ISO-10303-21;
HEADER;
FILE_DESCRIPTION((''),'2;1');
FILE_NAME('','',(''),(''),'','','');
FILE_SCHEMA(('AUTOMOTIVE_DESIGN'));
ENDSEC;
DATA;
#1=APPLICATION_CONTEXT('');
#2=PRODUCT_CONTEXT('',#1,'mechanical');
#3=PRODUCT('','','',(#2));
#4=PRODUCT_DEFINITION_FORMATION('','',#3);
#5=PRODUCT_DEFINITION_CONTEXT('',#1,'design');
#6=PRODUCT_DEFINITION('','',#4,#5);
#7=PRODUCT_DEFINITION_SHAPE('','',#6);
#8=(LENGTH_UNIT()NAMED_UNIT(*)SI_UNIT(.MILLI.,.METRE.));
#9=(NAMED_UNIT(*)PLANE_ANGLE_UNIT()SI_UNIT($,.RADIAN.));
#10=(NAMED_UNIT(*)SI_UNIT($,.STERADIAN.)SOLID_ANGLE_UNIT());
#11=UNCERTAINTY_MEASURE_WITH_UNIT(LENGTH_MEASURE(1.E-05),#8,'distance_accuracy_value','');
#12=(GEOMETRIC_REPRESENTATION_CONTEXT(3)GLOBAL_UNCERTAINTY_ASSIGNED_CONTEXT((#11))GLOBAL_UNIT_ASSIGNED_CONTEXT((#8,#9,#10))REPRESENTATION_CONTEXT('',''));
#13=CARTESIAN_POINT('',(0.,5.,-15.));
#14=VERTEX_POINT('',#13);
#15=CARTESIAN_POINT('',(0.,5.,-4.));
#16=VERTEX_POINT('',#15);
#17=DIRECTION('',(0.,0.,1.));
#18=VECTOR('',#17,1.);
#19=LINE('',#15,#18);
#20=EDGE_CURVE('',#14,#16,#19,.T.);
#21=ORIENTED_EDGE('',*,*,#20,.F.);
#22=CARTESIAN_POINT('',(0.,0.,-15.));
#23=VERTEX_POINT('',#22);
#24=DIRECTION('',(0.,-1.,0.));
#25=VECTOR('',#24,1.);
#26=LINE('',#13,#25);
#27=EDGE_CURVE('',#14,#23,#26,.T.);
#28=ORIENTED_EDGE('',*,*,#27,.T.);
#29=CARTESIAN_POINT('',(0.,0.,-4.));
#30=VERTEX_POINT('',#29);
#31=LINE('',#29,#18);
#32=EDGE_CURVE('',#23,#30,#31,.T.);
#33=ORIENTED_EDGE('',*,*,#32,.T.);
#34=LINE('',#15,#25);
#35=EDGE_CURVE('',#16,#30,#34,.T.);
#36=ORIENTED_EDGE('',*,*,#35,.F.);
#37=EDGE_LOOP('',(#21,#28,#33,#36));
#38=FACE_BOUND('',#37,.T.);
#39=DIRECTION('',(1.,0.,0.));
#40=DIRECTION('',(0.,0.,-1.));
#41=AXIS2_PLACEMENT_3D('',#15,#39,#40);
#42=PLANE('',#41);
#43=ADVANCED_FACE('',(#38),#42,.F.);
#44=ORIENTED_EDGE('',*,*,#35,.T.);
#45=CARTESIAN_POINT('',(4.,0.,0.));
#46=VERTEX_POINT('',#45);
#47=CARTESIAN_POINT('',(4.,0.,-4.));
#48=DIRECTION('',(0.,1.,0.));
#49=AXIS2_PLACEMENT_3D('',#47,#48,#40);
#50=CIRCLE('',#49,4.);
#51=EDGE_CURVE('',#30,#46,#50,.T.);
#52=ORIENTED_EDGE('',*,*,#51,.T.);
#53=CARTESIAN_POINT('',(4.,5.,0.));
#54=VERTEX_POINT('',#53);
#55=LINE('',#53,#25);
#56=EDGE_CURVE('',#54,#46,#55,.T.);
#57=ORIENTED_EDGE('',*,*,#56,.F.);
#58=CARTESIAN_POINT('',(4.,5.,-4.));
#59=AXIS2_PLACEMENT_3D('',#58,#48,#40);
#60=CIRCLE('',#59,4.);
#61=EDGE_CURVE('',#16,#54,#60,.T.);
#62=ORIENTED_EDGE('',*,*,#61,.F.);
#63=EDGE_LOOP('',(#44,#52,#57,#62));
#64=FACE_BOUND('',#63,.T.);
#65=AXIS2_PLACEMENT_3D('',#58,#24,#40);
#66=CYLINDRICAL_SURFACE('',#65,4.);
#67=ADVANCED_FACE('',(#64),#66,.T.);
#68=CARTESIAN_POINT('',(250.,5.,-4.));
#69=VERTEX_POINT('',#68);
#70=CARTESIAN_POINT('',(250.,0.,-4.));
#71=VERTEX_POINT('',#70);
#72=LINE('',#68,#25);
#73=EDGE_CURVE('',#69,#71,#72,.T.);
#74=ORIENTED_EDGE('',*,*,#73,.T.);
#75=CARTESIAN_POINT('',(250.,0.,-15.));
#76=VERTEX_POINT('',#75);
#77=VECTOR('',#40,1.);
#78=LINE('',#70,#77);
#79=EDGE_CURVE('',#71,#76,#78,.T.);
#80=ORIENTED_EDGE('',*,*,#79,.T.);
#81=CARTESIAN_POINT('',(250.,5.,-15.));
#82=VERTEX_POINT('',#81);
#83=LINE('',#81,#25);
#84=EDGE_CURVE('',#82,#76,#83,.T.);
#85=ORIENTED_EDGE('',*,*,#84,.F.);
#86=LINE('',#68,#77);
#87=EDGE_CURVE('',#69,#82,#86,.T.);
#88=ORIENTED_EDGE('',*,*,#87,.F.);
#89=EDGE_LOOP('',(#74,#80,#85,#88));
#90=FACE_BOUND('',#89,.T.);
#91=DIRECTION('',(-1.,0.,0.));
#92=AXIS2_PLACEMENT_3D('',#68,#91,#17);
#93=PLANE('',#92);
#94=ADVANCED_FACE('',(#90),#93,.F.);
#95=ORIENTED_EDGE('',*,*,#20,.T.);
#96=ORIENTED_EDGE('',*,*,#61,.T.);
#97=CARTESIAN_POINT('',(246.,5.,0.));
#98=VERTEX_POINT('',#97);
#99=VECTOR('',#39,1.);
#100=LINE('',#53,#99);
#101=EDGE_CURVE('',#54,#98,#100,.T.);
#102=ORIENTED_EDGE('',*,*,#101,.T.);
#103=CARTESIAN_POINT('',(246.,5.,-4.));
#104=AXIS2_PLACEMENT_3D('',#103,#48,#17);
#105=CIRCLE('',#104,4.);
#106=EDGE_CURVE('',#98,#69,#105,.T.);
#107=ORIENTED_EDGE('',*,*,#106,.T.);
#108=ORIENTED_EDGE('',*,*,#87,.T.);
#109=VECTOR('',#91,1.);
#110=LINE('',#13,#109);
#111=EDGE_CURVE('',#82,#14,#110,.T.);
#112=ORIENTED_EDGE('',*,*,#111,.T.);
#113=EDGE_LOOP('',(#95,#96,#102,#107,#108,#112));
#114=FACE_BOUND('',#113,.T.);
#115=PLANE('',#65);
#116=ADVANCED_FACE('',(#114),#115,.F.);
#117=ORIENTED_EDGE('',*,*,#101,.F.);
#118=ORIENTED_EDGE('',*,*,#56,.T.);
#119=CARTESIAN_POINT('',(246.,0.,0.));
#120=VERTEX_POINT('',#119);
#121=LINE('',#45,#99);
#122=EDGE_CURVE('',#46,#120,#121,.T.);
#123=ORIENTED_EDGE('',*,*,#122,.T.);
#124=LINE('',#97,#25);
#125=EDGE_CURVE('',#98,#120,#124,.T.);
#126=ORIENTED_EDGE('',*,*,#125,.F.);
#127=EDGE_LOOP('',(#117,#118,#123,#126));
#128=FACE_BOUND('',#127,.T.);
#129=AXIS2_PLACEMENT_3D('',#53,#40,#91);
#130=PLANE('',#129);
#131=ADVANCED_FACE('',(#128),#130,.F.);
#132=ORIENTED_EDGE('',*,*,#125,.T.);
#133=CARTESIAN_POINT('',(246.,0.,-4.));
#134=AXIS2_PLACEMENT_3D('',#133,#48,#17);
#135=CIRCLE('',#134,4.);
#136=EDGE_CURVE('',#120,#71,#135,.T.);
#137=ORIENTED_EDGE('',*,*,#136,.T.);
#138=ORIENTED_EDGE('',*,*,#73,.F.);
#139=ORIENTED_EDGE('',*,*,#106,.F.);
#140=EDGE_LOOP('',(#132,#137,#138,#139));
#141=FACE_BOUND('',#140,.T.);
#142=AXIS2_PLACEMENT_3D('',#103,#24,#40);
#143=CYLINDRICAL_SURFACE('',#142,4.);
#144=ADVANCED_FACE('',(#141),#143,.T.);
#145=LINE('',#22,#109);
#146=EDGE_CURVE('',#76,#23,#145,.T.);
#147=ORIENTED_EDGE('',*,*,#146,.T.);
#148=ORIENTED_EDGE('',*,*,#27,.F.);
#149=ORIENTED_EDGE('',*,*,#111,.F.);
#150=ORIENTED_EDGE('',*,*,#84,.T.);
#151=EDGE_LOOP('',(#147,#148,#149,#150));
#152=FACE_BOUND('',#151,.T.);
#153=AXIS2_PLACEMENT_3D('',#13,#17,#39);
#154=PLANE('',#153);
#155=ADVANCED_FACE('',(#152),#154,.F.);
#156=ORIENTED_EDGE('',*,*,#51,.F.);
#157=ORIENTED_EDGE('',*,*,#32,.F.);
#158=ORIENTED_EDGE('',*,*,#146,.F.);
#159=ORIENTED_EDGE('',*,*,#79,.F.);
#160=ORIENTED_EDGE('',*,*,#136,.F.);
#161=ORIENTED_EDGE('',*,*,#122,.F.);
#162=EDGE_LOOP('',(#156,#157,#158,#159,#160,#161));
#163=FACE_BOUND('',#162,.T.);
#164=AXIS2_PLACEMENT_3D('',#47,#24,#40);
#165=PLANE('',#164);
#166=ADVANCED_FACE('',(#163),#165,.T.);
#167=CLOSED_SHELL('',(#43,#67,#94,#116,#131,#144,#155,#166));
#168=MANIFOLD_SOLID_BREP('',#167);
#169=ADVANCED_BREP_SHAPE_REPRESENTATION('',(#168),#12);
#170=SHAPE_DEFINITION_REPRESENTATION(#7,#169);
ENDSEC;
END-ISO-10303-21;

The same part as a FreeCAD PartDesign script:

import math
import FreeCAD as App
import Part
import Sketcher

V = App.Vector
Q = App.Units.Quantity

doc = App.newDocument("Part")
body = doc.addObject("PartDesign::Body", "Body")

# Sketch on XZ plane
sketch1 = body.newObject("Sketcher::SketchObject", "Sketch")
sketch1.AttachmentSupport = (doc.getObject("XZ_Plane"), [""])
sketch1.MapMode = "FlatFace"
sketch1.addGeometry([
    Part.LineSegment(V(4, 0, 0), V(246, 0, 0)),  # 0
    Part.ArcOfCircle(Part.Circle(V(246, -4, 0), V(0, 0, 1), 4), math.radians(0), math.radians(90)),  # 1
    Part.LineSegment(V(250, -4, 0), V(250, -15, 0)),  # 2
    Part.LineSegment(V(250, -15, 0), V(0, -15, 0)),  # 3
    Part.LineSegment(V(0, -15, 0), V(0, -4, 0)),  # 4
    Part.ArcOfCircle(Part.Circle(V(4, -4, 0), V(0, 0, 1), 4), math.radians(90), math.radians(180)),  # 5
], False)
sketch1.addConstraint([
    Sketcher.Constraint("Tangent", 0, 2, 1, 2),
    Sketcher.Constraint("Tangent", 1, 1, 2, 1),
    Sketcher.Constraint("Coincident", 2, 2, 3, 1),
    Sketcher.Constraint("Coincident", 3, 2, 4, 1),
    Sketcher.Constraint("Tangent", 4, 2, 5, 2),
    Sketcher.Constraint("Tangent", 5, 1, 0, 1),
    Sketcher.Constraint("Horizontal", 0),
    Sketcher.Constraint("Vertical", 2),
    Sketcher.Constraint("Horizontal", 3),
    Sketcher.Constraint("Vertical", 4),
    Sketcher.Constraint("Equal", 1, 5),
    Sketcher.Constraint("PointOnObject", 0, 2, -1),
    Sketcher.Constraint("PointOnObject", 3, 2, -2),
    Sketcher.Constraint("Radius", 1, Q("4 mm")),
    Sketcher.Constraint("DistanceX", 0, 1, 0, 2, Q("242 mm")),
    Sketcher.Constraint("DistanceY", 2, 2, 2, 1, Q("11 mm")),
])
pad1 = body.newObject("PartDesign::Pad", "Pad")
pad1.Profile = sketch1
pad1.Length = 5
pad1.Reversed = True

doc.recompute()
